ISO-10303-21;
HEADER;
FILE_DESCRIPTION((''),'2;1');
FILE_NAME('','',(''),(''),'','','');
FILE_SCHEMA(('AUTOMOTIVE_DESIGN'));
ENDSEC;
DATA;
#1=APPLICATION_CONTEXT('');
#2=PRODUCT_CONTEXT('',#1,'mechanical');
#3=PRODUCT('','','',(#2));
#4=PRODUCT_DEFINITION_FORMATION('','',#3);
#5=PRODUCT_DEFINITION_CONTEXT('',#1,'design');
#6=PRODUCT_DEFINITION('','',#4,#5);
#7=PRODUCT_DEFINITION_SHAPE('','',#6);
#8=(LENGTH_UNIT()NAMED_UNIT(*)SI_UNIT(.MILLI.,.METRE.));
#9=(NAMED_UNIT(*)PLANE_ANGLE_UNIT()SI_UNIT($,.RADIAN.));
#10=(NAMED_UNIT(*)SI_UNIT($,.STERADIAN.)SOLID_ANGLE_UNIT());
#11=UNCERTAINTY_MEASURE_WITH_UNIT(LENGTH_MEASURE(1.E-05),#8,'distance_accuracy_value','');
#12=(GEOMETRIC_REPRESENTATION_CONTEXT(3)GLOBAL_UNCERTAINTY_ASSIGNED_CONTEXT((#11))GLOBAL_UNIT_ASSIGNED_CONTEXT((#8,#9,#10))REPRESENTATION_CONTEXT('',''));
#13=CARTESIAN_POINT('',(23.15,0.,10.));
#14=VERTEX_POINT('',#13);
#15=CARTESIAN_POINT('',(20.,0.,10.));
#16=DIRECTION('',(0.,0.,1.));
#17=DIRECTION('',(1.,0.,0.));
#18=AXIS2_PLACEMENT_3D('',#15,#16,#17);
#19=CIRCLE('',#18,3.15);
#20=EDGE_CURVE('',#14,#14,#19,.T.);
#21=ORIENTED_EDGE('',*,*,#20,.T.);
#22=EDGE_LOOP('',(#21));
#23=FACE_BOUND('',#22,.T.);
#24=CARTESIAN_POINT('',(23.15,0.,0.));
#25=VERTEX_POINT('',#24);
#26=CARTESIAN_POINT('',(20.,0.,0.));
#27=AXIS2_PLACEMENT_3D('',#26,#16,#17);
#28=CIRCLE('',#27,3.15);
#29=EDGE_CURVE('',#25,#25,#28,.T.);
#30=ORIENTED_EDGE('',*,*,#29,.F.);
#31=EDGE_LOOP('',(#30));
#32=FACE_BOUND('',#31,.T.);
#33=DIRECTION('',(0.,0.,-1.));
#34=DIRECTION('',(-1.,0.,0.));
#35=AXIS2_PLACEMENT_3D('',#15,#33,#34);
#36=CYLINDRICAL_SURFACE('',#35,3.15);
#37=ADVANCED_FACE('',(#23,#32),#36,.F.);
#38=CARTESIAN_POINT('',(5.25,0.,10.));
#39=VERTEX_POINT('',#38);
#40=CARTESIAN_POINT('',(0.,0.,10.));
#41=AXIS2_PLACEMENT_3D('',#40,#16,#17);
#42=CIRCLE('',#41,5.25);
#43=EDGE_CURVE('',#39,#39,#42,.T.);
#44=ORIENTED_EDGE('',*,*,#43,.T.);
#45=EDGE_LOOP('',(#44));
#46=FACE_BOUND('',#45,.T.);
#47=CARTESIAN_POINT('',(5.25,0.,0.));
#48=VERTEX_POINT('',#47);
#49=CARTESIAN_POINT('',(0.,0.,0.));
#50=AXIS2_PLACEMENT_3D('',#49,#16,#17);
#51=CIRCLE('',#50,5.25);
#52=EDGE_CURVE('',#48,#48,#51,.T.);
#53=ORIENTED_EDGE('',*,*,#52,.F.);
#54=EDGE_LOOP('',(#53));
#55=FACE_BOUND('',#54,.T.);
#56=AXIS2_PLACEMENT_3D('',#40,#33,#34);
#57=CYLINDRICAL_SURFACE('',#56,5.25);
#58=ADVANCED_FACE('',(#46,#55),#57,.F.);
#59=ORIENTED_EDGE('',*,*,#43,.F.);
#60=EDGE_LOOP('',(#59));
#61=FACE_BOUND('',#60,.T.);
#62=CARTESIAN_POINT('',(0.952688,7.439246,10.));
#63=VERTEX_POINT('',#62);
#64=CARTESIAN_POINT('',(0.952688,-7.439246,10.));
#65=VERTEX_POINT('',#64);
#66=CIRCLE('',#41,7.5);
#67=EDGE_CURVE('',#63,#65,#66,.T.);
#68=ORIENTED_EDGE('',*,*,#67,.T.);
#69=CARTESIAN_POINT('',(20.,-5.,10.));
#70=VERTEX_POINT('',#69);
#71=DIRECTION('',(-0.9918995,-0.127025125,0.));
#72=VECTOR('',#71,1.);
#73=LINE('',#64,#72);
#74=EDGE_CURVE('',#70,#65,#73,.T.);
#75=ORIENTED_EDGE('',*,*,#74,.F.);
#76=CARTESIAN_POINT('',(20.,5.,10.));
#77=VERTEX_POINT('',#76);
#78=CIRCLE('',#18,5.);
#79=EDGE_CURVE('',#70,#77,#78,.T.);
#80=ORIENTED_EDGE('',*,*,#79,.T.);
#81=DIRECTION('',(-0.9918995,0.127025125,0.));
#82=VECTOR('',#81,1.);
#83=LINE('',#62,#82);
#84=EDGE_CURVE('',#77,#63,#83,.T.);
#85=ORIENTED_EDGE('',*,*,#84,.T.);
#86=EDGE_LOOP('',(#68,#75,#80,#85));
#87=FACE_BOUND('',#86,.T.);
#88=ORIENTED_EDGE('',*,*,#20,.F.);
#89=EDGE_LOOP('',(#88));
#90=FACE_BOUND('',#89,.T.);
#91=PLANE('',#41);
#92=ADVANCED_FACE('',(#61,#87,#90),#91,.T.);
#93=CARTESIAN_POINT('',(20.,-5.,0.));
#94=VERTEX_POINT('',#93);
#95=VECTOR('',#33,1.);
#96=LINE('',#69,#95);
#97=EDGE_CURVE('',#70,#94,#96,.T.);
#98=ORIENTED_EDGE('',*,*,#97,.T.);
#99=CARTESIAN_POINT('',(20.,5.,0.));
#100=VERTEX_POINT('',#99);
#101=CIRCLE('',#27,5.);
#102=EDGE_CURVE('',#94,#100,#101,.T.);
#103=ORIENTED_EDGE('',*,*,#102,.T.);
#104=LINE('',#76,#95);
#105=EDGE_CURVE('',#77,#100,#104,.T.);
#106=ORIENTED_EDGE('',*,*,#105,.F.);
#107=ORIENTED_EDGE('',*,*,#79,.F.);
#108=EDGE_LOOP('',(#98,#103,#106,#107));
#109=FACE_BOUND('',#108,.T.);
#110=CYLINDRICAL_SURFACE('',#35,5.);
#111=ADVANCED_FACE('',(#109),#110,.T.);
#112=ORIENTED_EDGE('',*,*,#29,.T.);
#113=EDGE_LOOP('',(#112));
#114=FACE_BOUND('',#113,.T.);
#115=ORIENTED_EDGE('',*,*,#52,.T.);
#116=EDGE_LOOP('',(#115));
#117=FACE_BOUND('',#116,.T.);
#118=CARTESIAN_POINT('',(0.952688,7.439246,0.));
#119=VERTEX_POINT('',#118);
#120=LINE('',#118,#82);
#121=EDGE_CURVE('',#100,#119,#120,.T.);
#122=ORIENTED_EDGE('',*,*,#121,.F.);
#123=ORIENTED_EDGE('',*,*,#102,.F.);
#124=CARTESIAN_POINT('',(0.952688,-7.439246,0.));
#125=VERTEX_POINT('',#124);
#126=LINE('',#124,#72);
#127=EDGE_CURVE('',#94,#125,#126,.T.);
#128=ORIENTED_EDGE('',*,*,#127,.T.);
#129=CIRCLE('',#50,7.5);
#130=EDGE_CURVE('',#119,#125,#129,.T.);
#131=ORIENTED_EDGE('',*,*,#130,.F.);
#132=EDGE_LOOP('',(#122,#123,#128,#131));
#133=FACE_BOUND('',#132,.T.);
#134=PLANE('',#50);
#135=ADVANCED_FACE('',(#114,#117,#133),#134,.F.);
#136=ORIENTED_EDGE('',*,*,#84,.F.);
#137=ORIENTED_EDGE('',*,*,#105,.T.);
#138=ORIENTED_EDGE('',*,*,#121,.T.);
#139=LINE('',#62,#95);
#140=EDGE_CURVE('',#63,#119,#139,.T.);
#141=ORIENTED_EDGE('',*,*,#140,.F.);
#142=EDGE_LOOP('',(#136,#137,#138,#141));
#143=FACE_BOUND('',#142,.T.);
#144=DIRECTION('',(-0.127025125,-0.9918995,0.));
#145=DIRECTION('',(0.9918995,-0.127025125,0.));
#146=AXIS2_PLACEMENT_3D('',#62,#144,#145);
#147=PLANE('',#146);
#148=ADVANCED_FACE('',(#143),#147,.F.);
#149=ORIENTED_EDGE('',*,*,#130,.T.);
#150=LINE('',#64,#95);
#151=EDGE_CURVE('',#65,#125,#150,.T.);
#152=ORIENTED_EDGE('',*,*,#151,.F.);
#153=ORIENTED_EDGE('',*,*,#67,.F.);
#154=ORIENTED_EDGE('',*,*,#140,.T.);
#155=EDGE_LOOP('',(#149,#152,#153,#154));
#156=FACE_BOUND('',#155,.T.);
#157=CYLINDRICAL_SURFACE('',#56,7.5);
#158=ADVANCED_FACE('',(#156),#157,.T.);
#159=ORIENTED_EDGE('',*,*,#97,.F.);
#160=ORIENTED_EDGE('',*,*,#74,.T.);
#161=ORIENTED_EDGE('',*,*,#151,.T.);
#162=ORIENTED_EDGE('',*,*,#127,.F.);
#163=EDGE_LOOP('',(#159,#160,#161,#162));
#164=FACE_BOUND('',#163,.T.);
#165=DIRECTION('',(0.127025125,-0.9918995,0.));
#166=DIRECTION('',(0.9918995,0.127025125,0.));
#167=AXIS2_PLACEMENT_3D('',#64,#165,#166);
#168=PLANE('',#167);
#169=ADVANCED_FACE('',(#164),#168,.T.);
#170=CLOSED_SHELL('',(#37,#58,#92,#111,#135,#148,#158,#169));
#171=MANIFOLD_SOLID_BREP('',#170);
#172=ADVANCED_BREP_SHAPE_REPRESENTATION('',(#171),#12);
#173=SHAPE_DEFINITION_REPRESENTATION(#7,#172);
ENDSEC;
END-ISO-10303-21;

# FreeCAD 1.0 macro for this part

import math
import FreeCAD as App
import Part
import Sketcher
Q = App.Units.Quantity

doc = App.newDocument("Part")
body = doc.addObject("PartDesign::Body", "Body")

sketch1 = body.newObject("Sketcher::SketchObject", "Sketch")
sketch1.AttachmentSupport = (doc.getObject("XY_Plane"), [""])
sketch1.MapMode = "FlatFace"
sketch1.addGeometry(Part.ArcOfCircle(Part.Circle(App.Vector(0, 0, 0), App.Vector(0, 0, 1), 7.5), math.radians(82.702281), math.radians(277.297719)), False)
sketch1.addGeometry(Part.LineSegment(App.Vector(0.952688, -7.439246, 0), App.Vector(20, -5, 0)), False)
sketch1.addGeometry(Part.ArcOfCircle(Part.Circle(App.Vector(20, 0, 0), App.Vector(0, 0, 1), 5), math.radians(-90), math.radians(90)), False)
sketch1.addGeometry(Part.LineSegment(App.Vector(20, 5, 0), App.Vector(0.952688, 7.439246, 0)), False)
sketch1.addGeometry(Part.Circle(App.Vector(0, 0, 0), App.Vector(0, 0, 1), 5.25), False)
sketch1.addGeometry(Part.Circle(App.Vector(20, 0, 0), App.Vector(0, 0, 1), 3.15), False)
sketch1.addConstraint(Sketcher.Constraint("Tangent", 0, 2, 1, 1))
sketch1.addConstraint(Sketcher.Constraint("Coincident", 1, 2, 2, 1))
sketch1.addConstraint(Sketcher.Constraint("Coincident", 2, 2, 3, 1))
sketch1.addConstraint(Sketcher.Constraint("Tangent", 3, 2, 0, 1))
sketch1.addConstraint(Sketcher.Constraint("Coincident", 0, 3, -1, 1))
sketch1.addConstraint(Sketcher.Constraint("Coincident", 4, 3, -1, 1))
sketch1.addConstraint(Sketcher.Constraint("Coincident", 5, 3, 2, 3))
sketch1.addConstraint(Sketcher.Constraint("Symmetric", 1, 2, 2, 2, -1))
sketch1.addConstraint(Sketcher.Constraint("Vertical", 5, 3, 1, 2))
sketch1.addConstraint(Sketcher.Constraint("Radius", 2, Q("5 mm")))
sketch1.addConstraint(Sketcher.Constraint("Diameter", 4, Q("10.5 mm")))
sketch1.addConstraint(Sketcher.Constraint("Diameter", 5, Q("6.3 mm")))
sketch1.addConstraint(Sketcher.Constraint("Radius", 0, Q("7.5 mm")))
sketch1.addConstraint(Sketcher.Constraint("DistanceX", -1, 1, 2, 3, Q("20 mm")))
pad1 = body.newObject("PartDesign::Pad", "Pad")
pad1.Profile = sketch1
pad1.Length = 10

doc.recompute()
